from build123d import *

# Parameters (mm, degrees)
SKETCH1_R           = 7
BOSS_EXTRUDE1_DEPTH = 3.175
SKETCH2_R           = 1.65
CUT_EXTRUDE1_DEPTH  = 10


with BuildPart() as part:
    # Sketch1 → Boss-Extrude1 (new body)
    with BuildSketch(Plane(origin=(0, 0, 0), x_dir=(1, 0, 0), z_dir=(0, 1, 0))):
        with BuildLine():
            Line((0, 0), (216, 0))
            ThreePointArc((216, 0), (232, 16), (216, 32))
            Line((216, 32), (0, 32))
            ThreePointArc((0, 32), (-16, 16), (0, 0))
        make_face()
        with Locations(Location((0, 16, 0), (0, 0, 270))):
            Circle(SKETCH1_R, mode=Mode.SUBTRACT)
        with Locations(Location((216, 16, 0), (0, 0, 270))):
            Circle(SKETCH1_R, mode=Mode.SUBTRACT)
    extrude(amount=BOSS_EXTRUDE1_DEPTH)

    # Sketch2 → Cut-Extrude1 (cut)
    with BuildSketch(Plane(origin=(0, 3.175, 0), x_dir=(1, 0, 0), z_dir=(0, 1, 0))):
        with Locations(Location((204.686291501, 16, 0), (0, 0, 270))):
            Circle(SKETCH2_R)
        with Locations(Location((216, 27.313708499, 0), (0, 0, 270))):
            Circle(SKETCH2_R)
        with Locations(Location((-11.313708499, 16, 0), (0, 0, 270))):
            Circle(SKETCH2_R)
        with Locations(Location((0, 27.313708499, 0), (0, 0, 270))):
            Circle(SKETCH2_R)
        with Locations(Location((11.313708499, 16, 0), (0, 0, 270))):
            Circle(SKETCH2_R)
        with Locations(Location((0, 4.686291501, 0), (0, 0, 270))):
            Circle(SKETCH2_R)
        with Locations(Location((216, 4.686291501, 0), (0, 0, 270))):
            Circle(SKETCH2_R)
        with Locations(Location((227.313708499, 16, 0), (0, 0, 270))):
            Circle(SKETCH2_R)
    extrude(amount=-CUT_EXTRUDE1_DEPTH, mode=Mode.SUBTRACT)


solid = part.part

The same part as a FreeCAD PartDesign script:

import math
import FreeCAD as App
import Part
import Sketcher
Q = App.Units.Quantity

doc = App.newDocument("Part")
body = doc.addObject("PartDesign::Body", "Body")

sketch1 = body.newObject("Sketcher::SketchObject", "Sketch")
sketch1.AttachmentSupport = (doc.getObject("XZ_Plane"), [""])
sketch1.MapMode = "FlatFace"
sketch1.addGeometry(Part.LineSegment(App.Vector(0, 0, 0), App.Vector(216, 0, 0)), False)
sketch1.addGeometry(Part.ArcOfCircle(Part.Circle(App.Vector(216, -16, 0), App.Vector(0, 0, 1), 16), math.radians(-90), math.radians(90)), False)
sketch1.addGeometry(Part.LineSegment(App.Vector(216, -32, 0), App.Vector(0, -32, 0)), False)
sketch1.addGeometry(Part.ArcOfCircle(Part.Circle(App.Vector(0, -16, 0), App.Vector(0, 0, 1), 16), math.radians(90), math.radians(270)), False)
sketch1.addGeometry(Part.Circle(App.Vector(0, -16, 0), App.Vector(0, 0, 1), 7), False)
sketch1.addGeometry(Part.Circle(App.Vector(216, -16, 0), App.Vector(0, 0, 1), 7), False)
sketch1.addConstraint(Sketcher.Constraint("Tangent", 0, 2, 1, 2))
sketch1.addConstraint(Sketcher.Constraint("Tangent", 1, 1, 2, 1))
sketch1.addConstraint(Sketcher.Constraint("Tangent", 2, 2, 3, 2))
sketch1.addConstraint(Sketcher.Constraint("Tangent", 3, 1, 0, 1))
sketch1.addConstraint(Sketcher.Constraint("Horizontal", 0))
sketch1.addConstraint(Sketcher.Constraint("Horizontal", 2))
sketch1.addConstraint(Sketcher.Constraint("Coincident", 3, 1, -1, 1))
sketch1.addConstraint(Sketcher.Constraint("Coincident", 4, 3, 3, 3))
sketch1.addConstraint(Sketcher.Constraint("Coincident", 5, 3, 1, 3))
sketch1.addConstraint(Sketcher.Constraint("Equal", 4, 5))
sketch1.addConstraint(Sketcher.Constraint("Diameter", 4, Q("14 mm")))
sketch1.addConstraint(Sketcher.Constraint("Radius", 1, Q("16 mm")))
sketch1.addConstraint(Sketcher.Constraint("DistanceX", 0, 1, 0, 2, Q("216 mm")))
pad1 = body.newObject("PartDesign::Pad", "Pad")
pad1.Profile = sketch1
pad1.Length = 3.175
pad1.Reversed = True

sketch2 = body.newObject("Sketcher::SketchObject", "Sketch001")
sketch2.AttachmentSupport = (doc.getObject("XZ_Plane"), [""])
sketch2.MapMode = "FlatFace"
sketch2.AttachmentOffset = App.Placement(App.Vector(0, 0, -3.175), App.Rotation())
sketch2.addGeometry(Part.Circle(App.Vector(204.7, -16, 0), App.Vector(0, 0, 1), 1.6), False)
sketch2.addGeometry(Part.Circle(App.Vector(216, -27.3, 0), App.Vector(0, 0, 1), 1.6), False)
sketch2.addGeometry(Part.Circle(App.Vector(-11.3, -16, 0), App.Vector(0, 0, 1), 1.6), False)
sketch2.addGeometry(Part.Circle(App.Vector(0, -27.3, 0), App.Vector(0, 0, 1), 1.6), False)
sketch2.addGeometry(Part.Circle(App.Vector(11.3, -16, 0), App.Vector(0, 0, 1), 1.6), False)
sketch2.addGeometry(Part.Circle(App.Vector(0, -4.7, 0), App.Vector(0, 0, 1), 1.6), False)
sketch2.addGeometry(Part.Circle(App.Vector(216, -4.7, 0), App.Vector(0, 0, 1), 1.6), False)
sketch2.addGeometry(Part.Circle(App.Vector(227.3, -16, 0), App.Vector(0, 0, 1), 1.6), False)
sketch2.addConstraint(Sketcher.Constraint("Equal", 0, 1))
sketch2.addConstraint(Sketcher.Constraint("Equal", 1, 2))
sketch2.addConstraint(Sketcher.Constraint("Equal", 2, 3))
sketch2.addConstraint(Sketcher.Constraint("Equal", 3, 4))
sketch2.addConstraint(Sketcher.Constraint("Equal", 4, 5))
sketch2.addConstraint(Sketcher.Constraint("Equal", 5, 6))
sketch2.addConstraint(Sketcher.Constraint("Equal", 6, 7))
sketch2.addConstraint(Sketcher.Constraint("Symmetric", 2, 3, 4, 3, -2))
sketch2.addConstraint(Sketcher.Constraint("PointOnObject", 3, 3, -2))
sketch2.addConstraint(Sketcher.Constraint("PointOnObject", 5, 3, -2))
sketch2.addConstraint(Sketcher.Constraint("Horizontal", 0, 3, 2, 3))
sketch2.addConstraint(Sketcher.Constraint("Horizontal", 1, 3, 3, 3))
sketch2.addConstraint(Sketcher.Constraint("Horizontal", 5, 3, 6, 3))
sketch2.addConstraint(Sketcher.Constraint("Horizontal", 4, 3, 7, 3))
sketch2.addConstraint(Sketcher.Constraint("Vertical", 1, 3, 6, 3))
sketch2.addConstraint(Sketcher.Constraint("Diameter", 0, Q("3.3 mm")))
sketch2.addConstraint(Sketcher.Constraint("DistanceY", 0, 3, -1, 1, Q("16 mm")))
sketch2.addConstraint(Sketcher.Constraint("DistanceX", -1, 1, 1, 3, Q("216 mm")))
sketch2.addConstraint(Sketcher.Constraint("DistanceX", 2, 3, 0, 3, Q("216 mm")))
sketch2.addConstraint(Sketcher.Constraint("DistanceX", 4, 3, 7, 3, Q("216 mm")))
sketch2.addConstraint(Sketcher.Constraint("DistanceX", -1, 1, 0, 3, Q("204.686292 mm")))
sketch2.addConstraint(Sketcher.Constraint("DistanceY", 1, 3, -1, 1, Q("27.313708 mm")))
sketch2.addConstraint(Sketcher.Constraint("DistanceY", 5, 3, -1, 1, Q("4.686292 mm")))
pocket1 = body.newObject("PartDesign::Pocket", "Pocket")
pocket1.Profile = sketch2
pocket1.Length = 10
pocket1.Reversed = True

doc.recompute()
